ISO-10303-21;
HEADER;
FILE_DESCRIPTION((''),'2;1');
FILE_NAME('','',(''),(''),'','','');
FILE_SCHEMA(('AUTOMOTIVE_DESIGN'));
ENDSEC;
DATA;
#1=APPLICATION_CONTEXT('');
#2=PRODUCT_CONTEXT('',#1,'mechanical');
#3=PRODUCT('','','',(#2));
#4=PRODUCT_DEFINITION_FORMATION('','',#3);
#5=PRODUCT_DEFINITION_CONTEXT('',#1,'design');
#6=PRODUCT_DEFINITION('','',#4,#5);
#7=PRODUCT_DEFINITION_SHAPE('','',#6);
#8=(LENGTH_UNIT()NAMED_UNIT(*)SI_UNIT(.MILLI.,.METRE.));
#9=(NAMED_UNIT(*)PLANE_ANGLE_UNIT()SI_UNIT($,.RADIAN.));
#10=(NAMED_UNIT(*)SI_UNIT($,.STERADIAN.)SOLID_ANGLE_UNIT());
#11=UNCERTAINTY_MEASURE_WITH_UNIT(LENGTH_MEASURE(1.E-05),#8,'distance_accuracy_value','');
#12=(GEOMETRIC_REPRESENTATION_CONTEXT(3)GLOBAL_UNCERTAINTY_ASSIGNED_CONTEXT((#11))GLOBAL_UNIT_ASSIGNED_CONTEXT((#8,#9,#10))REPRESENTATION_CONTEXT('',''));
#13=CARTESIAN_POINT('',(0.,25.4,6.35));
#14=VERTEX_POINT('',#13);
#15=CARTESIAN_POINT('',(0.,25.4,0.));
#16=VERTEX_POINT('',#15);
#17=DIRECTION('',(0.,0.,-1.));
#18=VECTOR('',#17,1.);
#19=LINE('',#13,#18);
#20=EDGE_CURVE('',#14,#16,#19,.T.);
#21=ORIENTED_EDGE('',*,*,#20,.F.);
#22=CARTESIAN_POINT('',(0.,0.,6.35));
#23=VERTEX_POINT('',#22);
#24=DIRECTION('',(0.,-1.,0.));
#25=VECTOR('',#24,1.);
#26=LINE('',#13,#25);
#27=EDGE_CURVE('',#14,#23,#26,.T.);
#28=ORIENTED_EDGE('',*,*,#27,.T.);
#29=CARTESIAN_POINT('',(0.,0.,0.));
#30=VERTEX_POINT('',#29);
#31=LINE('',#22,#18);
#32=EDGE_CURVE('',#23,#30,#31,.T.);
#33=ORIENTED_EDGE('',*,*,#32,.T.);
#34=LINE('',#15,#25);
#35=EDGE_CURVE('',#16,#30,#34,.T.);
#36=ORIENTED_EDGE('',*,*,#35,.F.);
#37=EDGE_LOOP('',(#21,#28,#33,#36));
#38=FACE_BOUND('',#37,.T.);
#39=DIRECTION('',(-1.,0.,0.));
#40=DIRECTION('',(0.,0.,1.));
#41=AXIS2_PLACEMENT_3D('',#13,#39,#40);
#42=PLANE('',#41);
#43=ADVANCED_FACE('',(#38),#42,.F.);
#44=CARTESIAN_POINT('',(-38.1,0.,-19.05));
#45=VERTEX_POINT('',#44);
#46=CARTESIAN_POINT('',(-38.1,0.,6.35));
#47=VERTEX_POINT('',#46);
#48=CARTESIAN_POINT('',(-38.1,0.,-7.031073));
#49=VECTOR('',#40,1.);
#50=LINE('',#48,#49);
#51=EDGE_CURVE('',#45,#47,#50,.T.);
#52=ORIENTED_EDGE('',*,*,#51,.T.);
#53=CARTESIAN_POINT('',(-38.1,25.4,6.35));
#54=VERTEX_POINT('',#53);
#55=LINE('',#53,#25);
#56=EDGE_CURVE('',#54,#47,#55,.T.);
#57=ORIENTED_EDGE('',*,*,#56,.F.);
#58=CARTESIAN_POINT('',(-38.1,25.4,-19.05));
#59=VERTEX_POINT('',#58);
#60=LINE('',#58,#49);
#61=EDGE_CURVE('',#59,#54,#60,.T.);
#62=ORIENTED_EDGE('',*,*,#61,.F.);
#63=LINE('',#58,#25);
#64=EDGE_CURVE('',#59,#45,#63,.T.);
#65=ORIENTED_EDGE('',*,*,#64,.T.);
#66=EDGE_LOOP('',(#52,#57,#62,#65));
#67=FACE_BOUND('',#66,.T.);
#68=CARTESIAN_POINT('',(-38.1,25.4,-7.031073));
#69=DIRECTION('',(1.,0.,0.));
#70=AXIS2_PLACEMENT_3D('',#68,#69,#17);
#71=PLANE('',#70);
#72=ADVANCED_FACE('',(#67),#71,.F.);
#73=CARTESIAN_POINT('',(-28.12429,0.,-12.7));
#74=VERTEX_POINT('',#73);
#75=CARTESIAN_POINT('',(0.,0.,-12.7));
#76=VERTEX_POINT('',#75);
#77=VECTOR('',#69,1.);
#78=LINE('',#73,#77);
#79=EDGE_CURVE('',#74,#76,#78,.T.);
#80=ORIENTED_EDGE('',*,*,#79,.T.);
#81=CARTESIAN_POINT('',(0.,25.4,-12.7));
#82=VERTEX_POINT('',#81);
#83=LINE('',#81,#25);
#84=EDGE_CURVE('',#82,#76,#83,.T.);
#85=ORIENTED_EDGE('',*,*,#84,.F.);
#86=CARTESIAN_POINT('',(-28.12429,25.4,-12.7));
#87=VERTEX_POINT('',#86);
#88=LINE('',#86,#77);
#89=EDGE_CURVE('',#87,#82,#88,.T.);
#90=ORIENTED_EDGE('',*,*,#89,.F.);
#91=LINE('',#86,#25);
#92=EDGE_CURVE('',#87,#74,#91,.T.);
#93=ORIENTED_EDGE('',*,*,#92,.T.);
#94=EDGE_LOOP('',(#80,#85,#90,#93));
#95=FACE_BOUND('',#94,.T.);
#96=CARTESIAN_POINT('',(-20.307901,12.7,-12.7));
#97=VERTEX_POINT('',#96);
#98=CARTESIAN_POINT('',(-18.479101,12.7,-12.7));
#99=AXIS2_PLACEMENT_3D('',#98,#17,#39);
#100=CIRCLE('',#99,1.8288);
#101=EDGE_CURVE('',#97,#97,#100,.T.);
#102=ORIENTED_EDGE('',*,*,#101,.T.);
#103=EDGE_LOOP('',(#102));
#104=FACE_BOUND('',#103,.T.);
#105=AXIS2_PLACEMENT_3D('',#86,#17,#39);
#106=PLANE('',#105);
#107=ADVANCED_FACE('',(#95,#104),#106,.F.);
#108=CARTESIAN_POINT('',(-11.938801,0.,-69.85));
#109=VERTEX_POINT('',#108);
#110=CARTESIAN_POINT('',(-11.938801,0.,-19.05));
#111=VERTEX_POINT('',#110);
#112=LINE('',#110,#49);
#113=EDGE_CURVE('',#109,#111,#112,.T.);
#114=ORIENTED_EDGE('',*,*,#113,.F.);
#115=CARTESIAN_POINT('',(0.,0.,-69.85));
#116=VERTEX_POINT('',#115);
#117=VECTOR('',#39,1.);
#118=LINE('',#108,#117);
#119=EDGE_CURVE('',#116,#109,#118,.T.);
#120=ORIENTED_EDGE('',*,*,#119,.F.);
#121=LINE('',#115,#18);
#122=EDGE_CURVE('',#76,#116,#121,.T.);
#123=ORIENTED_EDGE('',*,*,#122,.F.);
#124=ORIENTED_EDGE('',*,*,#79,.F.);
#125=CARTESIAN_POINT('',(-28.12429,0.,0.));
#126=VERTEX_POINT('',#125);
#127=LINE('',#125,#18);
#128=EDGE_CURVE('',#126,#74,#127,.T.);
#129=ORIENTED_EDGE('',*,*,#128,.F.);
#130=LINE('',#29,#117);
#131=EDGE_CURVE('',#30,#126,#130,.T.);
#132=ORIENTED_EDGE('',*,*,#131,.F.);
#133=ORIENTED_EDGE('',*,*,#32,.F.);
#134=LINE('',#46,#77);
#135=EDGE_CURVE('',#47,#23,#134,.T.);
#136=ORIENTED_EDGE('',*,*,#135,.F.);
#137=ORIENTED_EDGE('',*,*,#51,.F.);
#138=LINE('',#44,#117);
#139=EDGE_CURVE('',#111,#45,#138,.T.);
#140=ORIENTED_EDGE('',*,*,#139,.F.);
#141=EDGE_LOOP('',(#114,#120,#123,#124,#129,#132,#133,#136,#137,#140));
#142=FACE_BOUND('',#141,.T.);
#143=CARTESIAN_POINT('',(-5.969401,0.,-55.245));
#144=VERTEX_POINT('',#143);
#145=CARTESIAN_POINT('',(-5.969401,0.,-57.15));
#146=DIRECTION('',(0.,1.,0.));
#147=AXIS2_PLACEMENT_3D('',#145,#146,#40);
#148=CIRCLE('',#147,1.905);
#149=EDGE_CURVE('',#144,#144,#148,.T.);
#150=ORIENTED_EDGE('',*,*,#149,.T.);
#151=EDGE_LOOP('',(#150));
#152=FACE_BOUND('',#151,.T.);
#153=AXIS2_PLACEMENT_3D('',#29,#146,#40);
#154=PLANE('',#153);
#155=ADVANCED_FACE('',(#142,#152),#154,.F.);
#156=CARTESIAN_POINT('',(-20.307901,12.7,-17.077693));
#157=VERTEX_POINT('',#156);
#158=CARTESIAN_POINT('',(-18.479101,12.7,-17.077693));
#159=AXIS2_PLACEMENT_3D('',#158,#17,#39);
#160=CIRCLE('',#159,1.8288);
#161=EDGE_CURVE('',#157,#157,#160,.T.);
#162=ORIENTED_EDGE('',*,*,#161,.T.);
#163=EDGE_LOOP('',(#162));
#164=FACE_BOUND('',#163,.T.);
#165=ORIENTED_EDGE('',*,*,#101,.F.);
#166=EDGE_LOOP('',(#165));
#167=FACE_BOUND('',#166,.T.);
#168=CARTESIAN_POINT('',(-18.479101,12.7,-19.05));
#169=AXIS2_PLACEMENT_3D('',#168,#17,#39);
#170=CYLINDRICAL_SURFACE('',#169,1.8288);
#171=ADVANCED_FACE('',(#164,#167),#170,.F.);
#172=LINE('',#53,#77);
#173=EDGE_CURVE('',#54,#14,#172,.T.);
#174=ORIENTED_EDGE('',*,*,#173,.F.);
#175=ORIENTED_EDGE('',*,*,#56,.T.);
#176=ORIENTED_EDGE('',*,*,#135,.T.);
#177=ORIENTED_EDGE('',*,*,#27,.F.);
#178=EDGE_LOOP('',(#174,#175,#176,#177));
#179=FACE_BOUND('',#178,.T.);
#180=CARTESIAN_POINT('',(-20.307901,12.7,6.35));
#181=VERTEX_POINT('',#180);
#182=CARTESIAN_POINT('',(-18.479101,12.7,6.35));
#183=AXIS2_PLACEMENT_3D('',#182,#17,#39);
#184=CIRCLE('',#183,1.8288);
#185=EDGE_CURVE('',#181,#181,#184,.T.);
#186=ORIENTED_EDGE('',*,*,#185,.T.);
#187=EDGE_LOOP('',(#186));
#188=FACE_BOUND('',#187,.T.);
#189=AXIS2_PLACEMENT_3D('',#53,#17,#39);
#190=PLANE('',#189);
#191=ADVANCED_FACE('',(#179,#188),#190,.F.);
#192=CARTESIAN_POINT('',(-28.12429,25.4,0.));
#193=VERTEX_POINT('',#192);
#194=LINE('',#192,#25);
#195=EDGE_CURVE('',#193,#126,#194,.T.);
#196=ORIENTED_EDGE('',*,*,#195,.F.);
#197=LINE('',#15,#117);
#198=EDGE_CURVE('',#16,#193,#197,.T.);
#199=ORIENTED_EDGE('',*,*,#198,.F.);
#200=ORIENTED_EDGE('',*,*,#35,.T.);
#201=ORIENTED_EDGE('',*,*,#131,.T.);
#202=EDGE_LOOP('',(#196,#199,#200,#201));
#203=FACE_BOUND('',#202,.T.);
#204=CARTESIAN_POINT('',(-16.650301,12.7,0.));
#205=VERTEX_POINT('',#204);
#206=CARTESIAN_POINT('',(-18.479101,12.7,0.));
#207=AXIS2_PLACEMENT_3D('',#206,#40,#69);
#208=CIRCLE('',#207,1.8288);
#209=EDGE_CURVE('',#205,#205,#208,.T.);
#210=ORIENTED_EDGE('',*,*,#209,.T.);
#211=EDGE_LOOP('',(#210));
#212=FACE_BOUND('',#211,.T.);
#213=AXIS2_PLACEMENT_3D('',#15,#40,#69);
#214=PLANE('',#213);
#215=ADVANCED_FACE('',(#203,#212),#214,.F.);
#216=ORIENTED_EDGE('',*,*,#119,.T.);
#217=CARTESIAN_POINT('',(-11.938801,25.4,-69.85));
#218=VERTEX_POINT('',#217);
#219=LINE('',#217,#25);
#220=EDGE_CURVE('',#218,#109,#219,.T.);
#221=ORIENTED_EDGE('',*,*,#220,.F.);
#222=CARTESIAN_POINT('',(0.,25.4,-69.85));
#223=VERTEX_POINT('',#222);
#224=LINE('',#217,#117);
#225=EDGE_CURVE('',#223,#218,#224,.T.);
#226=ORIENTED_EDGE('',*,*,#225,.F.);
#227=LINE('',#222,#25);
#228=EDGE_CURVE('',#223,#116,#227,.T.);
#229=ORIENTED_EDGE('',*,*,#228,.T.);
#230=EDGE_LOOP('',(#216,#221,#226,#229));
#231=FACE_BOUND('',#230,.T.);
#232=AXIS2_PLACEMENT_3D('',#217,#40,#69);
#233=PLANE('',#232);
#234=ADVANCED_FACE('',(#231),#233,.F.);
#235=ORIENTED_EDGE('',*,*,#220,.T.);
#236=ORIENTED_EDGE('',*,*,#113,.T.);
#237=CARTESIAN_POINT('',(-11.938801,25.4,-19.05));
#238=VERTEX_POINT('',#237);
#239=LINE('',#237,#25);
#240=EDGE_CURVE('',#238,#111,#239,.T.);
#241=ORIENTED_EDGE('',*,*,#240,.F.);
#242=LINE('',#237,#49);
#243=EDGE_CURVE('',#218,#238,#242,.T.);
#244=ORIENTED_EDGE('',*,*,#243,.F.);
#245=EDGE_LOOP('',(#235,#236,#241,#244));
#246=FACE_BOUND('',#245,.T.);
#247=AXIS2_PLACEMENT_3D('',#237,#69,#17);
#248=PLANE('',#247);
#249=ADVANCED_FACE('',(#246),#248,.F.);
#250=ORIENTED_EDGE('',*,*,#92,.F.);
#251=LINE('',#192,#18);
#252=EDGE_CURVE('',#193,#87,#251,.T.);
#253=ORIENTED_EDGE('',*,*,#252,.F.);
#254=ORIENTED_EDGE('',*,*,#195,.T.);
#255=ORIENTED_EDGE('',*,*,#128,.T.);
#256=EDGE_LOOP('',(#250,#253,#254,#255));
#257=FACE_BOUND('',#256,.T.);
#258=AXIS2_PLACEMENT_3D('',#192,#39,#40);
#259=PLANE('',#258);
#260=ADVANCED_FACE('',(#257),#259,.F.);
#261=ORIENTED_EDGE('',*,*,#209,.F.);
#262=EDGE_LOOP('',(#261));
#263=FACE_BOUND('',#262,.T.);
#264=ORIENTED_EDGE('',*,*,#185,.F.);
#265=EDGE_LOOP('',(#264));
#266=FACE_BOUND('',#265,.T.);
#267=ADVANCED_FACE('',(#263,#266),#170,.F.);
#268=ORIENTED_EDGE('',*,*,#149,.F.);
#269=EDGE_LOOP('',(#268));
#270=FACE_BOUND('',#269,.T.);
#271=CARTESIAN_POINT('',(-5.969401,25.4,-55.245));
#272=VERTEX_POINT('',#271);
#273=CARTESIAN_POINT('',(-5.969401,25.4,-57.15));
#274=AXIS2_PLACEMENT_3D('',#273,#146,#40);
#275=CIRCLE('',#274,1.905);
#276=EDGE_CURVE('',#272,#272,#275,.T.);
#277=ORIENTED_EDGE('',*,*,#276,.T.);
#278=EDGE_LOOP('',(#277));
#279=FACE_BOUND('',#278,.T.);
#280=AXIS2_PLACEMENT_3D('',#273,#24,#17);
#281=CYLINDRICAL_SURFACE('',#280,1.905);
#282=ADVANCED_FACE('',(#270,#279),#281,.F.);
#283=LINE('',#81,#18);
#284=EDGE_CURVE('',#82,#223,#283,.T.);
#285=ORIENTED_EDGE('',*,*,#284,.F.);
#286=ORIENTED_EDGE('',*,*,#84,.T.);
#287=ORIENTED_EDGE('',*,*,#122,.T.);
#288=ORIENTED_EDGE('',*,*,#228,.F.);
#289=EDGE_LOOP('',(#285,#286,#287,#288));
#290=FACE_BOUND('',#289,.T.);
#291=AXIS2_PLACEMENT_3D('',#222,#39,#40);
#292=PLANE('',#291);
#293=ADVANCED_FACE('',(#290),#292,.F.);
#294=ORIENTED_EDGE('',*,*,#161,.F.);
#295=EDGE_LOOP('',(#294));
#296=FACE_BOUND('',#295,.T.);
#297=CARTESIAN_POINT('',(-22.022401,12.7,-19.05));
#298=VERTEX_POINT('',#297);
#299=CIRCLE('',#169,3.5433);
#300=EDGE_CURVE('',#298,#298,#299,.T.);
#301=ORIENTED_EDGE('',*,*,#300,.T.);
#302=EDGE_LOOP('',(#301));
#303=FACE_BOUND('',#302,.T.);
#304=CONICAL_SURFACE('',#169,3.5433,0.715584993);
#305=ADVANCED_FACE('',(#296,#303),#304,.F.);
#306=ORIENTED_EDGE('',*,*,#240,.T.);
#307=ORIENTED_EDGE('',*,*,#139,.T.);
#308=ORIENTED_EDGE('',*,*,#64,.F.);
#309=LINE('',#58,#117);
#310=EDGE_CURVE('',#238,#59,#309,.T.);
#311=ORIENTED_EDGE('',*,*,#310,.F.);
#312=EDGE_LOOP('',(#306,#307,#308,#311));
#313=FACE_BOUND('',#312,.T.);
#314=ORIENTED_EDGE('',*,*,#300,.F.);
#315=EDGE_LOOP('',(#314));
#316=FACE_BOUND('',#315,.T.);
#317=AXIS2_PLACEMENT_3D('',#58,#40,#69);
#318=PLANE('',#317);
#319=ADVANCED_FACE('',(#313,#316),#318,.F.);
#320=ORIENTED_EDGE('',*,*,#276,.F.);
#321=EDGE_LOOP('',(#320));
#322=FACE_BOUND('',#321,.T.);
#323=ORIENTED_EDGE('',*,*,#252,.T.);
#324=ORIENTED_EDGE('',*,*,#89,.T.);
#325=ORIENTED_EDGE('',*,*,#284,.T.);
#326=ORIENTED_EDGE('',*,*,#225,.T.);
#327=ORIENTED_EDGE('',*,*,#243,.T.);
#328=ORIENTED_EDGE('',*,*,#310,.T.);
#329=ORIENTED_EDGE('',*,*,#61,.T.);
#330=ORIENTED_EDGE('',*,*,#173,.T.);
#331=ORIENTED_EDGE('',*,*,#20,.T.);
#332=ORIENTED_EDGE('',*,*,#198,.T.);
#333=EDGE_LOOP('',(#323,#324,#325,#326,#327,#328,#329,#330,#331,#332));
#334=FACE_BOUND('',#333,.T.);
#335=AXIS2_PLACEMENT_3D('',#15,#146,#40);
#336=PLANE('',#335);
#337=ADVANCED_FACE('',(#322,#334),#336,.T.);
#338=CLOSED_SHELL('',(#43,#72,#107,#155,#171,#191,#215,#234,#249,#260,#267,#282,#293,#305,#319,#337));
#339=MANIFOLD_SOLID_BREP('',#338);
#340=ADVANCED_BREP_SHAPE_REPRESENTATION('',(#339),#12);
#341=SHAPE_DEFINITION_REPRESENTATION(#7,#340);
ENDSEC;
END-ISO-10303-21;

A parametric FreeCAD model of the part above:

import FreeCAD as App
import Part
import Sketcher
Q = App.Units.Quantity

doc = App.newDocument("Part")
body = doc.addObject("PartDesign::Body", "Body")

# Sketch on XZ plane
sketch1 = body.newObject("Sketcher::SketchObject", "Sketch")
sketch1.AttachmentSupport = (doc.getObject("XZ_Plane"), [""])
sketch1.MapMode = "FlatFace"
sketch1.addGeometry([
    Part.LineSegment(App.Vector(0, 0, 0), App.Vector(-28.1, 0, 0)),  # 0
    Part.LineSegment(App.Vector(-28.1, 0, 0), App.Vector(-28.1, -12.7, 0)),  # 1
    Part.LineSegment(App.Vector(-28.1, -12.7, 0), App.Vector(0, -12.7, 0)),  # 2
    Part.LineSegment(App.Vector(0, -12.7, 0), App.Vector(0, -69.8, 0)),  # 3
    Part.LineSegment(App.Vector(0, -69.8, 0), App.Vector(-11.9, -69.8, 0)),  # 4
    Part.LineSegment(App.Vector(-11.9, -69.8, 0), App.Vector(-11.9, -19.1, 0)),  # 5
    Part.LineSegment(App.Vector(-11.9, -19.1, 0), App.Vector(-38.1, -19.1, 0)),  # 6
    Part.LineSegment(App.Vector(-38.1, -19.1, 0), App.Vector(-38.1, 6.3, 0)),  # 7
    Part.LineSegment(App.Vector(-38.1, 6.3, 0), App.Vector(0, 6.3, 0)),  # 8
    Part.LineSegment(App.Vector(0, 6.3, 0), App.Vector(0, 0, 0)),  # 9
    Part.Circle(App.Vector(-6, -57.1, 0), App.Vector(0, 0, 1), 1.9),  # 10
], False)
sketch1.addConstraint([
    Sketcher.Constraint("Coincident", 0, 2, 1, 1),
    Sketcher.Constraint("Coincident", 1, 2, 2, 1),
    Sketcher.Constraint("Coincident", 2, 2, 3, 1),
    Sketcher.Constraint("Coincident", 3, 2, 4, 1),
    Sketcher.Constraint("Coincident", 4, 2, 5, 1),
    Sketcher.Constraint("Coincident", 5, 2, 6, 1),
    Sketcher.Constraint("Coincident", 6, 2, 7, 1),
    Sketcher.Constraint("Coincident", 7, 2, 8, 1),
    Sketcher.Constraint("Coincident", 8, 2, 9, 1),
    Sketcher.Constraint("Coincident", 9, 2, 0, 1),
    Sketcher.Constraint("Horizontal", 0),
    Sketcher.Constraint("Vertical", 1),
    Sketcher.Constraint("Horizontal", 2),
    Sketcher.Constraint("Vertical", 3),
    Sketcher.Constraint("Horizontal", 4),
    Sketcher.Constraint("Vertical", 5),
    Sketcher.Constraint("Horizontal", 6),
    Sketcher.Constraint("Vertical", 7),
    Sketcher.Constraint("Horizontal", 8),
    Sketcher.Constraint("Vertical", 9),
    Sketcher.Constraint("Coincident", 9, 2, -1, 1),
    Sketcher.Constraint("PointOnObject", 2, 2, -2),
    Sketcher.Constraint("Diameter", 10, Q("0.15 in")),
    Sketcher.Constraint("DistanceY", 5, 1, 5, 2, Q("2 in")),
    Sketcher.Constraint("DistanceY", 7, 1, 7, 2, Q("1 in")),
    Sketcher.Constraint("DistanceX", 8, 1, 8, 2, Q("1.5 in")),
    Sketcher.Constraint("DistanceY", 1, 2, 1, 1, Q("0.5 in")),
    Sketcher.Constraint("DistanceY", 3, 2, 3, 1, Q("2.25 in")),
    Sketcher.Constraint("DistanceY", 3, 2, 10, 3, Q("0.5 in")),
    Sketcher.Constraint("DistanceX", 4, 2, 4, 1, Q("11.938801 mm")),
    Sketcher.Constraint("DistanceX", 0, 2, 0, 1, Q("28.12429 mm")),
    Sketcher.Constraint("DistanceX", 10, 3, -1, 1, Q("5.969401 mm")),
])
pad1 = body.newObject("PartDesign::Pad", "Pad")
pad1.Profile = sketch1
pad1.Length = Q("1 in")
pad1.Reversed = True

# Sketch on XY plane
sketch2 = body.newObject("Sketcher::SketchObject", "Sketch001")
sketch2.AttachmentSupport = (doc.getObject("XY_Plane"), [""])
sketch2.MapMode = "FlatFace"
sketch2.AttachmentOffset = App.Placement(App.Vector(0, 0, -0.75 * 25.4), App.Rotation())
sketch2.addGeometry(Part.Circle(App.Vector(-18.5, 12.7, 0), App.Vector(0, 0, 1), 1.8), False)
sketch2.addConstraint([
    Sketcher.Constraint("Diameter", 0, Q("0.144 in")),
    Sketcher.Constraint("DistanceY", -1, 1, 0, 3, Q("0.5 in")),
    Sketcher.Constraint("DistanceX", 0, 3, -1, 1, Q("18.479101 mm")),
])
doc.recompute()
hole = body.newObject("PartDesign::Hole", "Hole")
hole.Profile = sketch2
hole.ThreadType = "None"
hole.Diameter = Q("0.144 in")
hole.DepthType = "ThroughAll"
hole.HoleCutType = "Countersink"
hole.HoleCutDiameter = Q("0.279 in")
hole.HoleCutCountersinkAngle = 82
hole.Reversed = True

doc.recompute()
